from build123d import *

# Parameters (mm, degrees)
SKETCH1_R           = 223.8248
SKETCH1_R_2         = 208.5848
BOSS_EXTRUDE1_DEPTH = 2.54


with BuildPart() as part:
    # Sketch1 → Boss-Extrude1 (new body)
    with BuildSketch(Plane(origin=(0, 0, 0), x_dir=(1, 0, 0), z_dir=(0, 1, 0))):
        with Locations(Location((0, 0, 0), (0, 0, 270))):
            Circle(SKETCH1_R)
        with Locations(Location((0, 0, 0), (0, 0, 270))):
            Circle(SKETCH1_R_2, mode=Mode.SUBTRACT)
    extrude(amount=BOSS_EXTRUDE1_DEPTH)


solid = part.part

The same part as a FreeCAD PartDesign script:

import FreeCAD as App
import Part
import Sketcher

V = App.Vector
Q = App.Units.Quantity

doc = App.newDocument("Part")
body = doc.addObject("PartDesign::Body", "Body")

# Sketch on XZ plane
sketch1 = body.newObject("Sketcher::SketchObject", "Sketch")
sketch1.AttachmentSupport = (doc.getObject("XZ_Plane"), [""])
sketch1.MapMode = "FlatFace"
sketch1.addGeometry([
    Part.Circle(V(0, 0, 0), V(0, 0, 1), 223.8248),
    Part.Circle(V(0, 0, 0), V(0, 0, 1), 208.5848),
], False)
sketch1.addConstraint([
    Sketcher.Constraint("Coincident", 0, 3, -1, 1),
    Sketcher.Constraint("Coincident", 1, 3, -1, 1),
    Sketcher.Constraint("Diameter", 0, Q("17.624 in")),
    Sketcher.Constraint("Diameter", 1, Q("16.424 in")),
])
pad1 = body.newObject("PartDesign::Pad", "Pad")
pad1.Profile = sketch1
pad1.Length = Q("0.1 in")
pad1.Reversed = True

doc.recompute()
